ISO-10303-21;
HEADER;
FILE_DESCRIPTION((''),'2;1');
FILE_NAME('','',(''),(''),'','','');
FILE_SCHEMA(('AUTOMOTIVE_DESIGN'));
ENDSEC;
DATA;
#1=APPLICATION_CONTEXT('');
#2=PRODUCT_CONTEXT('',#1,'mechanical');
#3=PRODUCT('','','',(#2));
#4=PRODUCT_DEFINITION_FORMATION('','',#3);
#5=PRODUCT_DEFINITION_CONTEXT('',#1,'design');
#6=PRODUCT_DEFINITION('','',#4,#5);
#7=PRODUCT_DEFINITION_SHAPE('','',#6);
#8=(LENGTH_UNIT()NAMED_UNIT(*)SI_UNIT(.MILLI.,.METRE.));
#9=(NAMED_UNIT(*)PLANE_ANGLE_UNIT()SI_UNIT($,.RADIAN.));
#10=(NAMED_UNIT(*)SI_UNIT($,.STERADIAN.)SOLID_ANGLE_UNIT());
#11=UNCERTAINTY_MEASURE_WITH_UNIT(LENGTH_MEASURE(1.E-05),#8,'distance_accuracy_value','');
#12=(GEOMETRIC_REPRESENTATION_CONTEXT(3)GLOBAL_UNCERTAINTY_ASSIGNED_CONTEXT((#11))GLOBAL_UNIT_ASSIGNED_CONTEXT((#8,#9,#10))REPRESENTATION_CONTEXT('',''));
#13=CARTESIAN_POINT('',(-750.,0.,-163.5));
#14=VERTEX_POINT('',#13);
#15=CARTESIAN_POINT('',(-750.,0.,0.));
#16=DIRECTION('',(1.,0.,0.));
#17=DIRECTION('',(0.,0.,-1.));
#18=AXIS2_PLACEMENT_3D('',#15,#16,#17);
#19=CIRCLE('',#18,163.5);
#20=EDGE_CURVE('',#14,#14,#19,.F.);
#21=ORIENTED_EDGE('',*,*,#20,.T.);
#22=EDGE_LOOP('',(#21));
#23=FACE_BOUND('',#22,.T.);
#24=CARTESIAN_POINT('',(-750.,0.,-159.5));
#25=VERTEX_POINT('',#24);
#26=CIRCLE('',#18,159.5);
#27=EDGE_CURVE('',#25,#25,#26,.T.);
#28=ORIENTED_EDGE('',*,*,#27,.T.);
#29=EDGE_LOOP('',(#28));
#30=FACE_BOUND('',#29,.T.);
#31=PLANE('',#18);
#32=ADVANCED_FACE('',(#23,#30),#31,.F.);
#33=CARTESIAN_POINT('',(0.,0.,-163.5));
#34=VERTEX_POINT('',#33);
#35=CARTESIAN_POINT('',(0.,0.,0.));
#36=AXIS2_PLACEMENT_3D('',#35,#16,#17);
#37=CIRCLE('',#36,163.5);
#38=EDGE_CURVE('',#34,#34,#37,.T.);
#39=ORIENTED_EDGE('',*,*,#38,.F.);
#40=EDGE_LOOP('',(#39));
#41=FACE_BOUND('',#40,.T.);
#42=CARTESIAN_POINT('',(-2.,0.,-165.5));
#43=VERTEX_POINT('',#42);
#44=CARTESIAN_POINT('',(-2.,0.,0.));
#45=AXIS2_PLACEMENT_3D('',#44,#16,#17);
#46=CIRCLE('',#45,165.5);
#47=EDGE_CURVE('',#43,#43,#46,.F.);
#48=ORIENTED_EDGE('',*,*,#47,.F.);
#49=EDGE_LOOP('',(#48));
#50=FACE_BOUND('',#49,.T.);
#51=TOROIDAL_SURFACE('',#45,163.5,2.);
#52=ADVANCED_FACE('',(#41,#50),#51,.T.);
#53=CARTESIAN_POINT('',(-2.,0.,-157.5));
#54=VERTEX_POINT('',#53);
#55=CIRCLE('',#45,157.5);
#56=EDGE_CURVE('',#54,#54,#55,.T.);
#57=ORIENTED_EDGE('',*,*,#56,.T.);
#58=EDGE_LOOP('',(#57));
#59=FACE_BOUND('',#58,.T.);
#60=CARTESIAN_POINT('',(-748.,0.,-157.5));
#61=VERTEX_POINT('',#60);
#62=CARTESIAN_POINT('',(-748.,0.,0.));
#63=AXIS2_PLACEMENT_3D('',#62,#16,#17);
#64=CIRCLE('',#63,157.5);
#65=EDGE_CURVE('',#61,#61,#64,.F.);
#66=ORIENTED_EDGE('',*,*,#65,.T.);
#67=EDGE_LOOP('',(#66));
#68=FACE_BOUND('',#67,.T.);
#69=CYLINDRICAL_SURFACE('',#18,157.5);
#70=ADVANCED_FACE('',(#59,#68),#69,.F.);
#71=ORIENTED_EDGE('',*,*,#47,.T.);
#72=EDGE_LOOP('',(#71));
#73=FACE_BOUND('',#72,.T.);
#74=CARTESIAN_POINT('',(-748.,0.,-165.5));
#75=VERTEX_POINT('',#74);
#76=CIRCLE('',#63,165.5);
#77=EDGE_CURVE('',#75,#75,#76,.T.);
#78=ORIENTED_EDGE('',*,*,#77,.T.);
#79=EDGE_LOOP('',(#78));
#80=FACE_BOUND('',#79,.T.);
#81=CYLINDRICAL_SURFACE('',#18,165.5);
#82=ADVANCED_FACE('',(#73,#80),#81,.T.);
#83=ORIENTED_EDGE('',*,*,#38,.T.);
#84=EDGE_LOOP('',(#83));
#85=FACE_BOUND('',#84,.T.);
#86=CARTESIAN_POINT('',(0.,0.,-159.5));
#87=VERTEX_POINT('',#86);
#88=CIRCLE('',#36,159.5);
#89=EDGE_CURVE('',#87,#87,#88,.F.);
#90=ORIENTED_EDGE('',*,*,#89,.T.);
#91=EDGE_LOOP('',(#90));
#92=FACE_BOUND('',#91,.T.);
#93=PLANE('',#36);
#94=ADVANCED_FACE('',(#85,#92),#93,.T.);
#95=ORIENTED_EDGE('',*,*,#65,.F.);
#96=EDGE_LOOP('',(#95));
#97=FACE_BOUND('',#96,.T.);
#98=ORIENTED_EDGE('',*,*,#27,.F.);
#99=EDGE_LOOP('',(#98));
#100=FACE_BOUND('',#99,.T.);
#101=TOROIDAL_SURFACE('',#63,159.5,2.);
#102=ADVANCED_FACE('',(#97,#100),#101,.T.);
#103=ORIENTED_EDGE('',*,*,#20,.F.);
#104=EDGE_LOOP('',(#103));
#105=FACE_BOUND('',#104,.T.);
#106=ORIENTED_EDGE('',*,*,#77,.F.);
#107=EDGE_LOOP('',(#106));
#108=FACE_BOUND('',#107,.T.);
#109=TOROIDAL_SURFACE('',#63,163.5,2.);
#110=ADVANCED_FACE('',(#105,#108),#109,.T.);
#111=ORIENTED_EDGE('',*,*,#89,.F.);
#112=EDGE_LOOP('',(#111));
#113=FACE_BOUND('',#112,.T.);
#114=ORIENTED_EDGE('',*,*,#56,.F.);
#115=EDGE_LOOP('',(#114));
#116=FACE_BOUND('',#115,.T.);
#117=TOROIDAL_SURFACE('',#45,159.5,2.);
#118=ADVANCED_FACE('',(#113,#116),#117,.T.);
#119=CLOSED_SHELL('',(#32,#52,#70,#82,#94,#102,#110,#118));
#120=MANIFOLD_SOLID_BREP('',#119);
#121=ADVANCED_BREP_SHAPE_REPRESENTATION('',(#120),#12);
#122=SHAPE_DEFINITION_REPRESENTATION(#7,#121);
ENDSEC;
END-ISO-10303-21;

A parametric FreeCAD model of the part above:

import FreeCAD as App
import Part
import Sketcher
from FreeCAD import Vector


def edges_at(feature, points):
    """Names of the edges that pass closest to the given points."""
    edges = feature.Shape.Edges
    near = lambda p: min(range(len(edges)), key=lambda i: edges[i].distToShape(Part.Vertex(*p))[0])
    return sorted({f"Edge{near(p) + 1}" for p in points})

doc = App.newDocument("Part")
body = doc.addObject("PartDesign::Body", "Body")

# Sketch on YZ plane
sketch1 = doc.addObject("Sketcher::SketchObject", "Sketch")
body.addObject(sketch1)
sketch1.AttachmentSupport = (doc.YZ_Plane, [""])
sketch1.MapMode = "FlatFace"
sketch1.addGeometry(Part.Circle(Vector(0, 0, 0), Vector(0, 0, 1), 166), False)
sketch1.addConstraint([
    Sketcher.Constraint("Coincident", 0, 3, -1, 1),
    Sketcher.Constraint("Diameter", 0, 331.0),
])
pad1 = doc.addObject("PartDesign::Pad", "Pad")
body.addObject(pad1)
pad1.Profile = sketch1
pad1.Length = 750
pad1.Reversed = True

# Sketch on YZ plane
sketch2 = doc.addObject("Sketcher::SketchObject", "Sketch001")
body.addObject(sketch2)
sketch2.AttachmentSupport = (doc.YZ_Plane, [""])
sketch2.MapMode = "FlatFace"
sketch2.addGeometry(Part.Circle(Vector(0, 0, 0), Vector(0, 0, 1), 158), False)
sketch2.addConstraint([
    Sketcher.Constraint("Coincident", 0, 3, -1, 1),
    Sketcher.Constraint("Diameter", 0, 315.0),
])
pocket1 = doc.addObject("PartDesign::Pocket", "Pocket")
body.addObject(pocket1)
pocket1.Profile = sketch2
pocket1.Length = 750
doc.recompute()

fillet = doc.addObject("PartDesign::Fillet", "Fillet")
body.addObject(fillet)
fillet.Base = (pocket1, edges_at(pocket1, [(0, 0, 165.5), (0, 0, 157.5)]))
fillet.Radius = 2
doc.recompute()

fillet2 = doc.addObject("PartDesign::Fillet", "Fillet001")
body.addObject(fillet2)
fillet2.Base = (fillet, edges_at(fillet, [(-750, 0, 165.5), (-750, 0, 157.5)]))
fillet2.Radius = 2

doc.recompute()
